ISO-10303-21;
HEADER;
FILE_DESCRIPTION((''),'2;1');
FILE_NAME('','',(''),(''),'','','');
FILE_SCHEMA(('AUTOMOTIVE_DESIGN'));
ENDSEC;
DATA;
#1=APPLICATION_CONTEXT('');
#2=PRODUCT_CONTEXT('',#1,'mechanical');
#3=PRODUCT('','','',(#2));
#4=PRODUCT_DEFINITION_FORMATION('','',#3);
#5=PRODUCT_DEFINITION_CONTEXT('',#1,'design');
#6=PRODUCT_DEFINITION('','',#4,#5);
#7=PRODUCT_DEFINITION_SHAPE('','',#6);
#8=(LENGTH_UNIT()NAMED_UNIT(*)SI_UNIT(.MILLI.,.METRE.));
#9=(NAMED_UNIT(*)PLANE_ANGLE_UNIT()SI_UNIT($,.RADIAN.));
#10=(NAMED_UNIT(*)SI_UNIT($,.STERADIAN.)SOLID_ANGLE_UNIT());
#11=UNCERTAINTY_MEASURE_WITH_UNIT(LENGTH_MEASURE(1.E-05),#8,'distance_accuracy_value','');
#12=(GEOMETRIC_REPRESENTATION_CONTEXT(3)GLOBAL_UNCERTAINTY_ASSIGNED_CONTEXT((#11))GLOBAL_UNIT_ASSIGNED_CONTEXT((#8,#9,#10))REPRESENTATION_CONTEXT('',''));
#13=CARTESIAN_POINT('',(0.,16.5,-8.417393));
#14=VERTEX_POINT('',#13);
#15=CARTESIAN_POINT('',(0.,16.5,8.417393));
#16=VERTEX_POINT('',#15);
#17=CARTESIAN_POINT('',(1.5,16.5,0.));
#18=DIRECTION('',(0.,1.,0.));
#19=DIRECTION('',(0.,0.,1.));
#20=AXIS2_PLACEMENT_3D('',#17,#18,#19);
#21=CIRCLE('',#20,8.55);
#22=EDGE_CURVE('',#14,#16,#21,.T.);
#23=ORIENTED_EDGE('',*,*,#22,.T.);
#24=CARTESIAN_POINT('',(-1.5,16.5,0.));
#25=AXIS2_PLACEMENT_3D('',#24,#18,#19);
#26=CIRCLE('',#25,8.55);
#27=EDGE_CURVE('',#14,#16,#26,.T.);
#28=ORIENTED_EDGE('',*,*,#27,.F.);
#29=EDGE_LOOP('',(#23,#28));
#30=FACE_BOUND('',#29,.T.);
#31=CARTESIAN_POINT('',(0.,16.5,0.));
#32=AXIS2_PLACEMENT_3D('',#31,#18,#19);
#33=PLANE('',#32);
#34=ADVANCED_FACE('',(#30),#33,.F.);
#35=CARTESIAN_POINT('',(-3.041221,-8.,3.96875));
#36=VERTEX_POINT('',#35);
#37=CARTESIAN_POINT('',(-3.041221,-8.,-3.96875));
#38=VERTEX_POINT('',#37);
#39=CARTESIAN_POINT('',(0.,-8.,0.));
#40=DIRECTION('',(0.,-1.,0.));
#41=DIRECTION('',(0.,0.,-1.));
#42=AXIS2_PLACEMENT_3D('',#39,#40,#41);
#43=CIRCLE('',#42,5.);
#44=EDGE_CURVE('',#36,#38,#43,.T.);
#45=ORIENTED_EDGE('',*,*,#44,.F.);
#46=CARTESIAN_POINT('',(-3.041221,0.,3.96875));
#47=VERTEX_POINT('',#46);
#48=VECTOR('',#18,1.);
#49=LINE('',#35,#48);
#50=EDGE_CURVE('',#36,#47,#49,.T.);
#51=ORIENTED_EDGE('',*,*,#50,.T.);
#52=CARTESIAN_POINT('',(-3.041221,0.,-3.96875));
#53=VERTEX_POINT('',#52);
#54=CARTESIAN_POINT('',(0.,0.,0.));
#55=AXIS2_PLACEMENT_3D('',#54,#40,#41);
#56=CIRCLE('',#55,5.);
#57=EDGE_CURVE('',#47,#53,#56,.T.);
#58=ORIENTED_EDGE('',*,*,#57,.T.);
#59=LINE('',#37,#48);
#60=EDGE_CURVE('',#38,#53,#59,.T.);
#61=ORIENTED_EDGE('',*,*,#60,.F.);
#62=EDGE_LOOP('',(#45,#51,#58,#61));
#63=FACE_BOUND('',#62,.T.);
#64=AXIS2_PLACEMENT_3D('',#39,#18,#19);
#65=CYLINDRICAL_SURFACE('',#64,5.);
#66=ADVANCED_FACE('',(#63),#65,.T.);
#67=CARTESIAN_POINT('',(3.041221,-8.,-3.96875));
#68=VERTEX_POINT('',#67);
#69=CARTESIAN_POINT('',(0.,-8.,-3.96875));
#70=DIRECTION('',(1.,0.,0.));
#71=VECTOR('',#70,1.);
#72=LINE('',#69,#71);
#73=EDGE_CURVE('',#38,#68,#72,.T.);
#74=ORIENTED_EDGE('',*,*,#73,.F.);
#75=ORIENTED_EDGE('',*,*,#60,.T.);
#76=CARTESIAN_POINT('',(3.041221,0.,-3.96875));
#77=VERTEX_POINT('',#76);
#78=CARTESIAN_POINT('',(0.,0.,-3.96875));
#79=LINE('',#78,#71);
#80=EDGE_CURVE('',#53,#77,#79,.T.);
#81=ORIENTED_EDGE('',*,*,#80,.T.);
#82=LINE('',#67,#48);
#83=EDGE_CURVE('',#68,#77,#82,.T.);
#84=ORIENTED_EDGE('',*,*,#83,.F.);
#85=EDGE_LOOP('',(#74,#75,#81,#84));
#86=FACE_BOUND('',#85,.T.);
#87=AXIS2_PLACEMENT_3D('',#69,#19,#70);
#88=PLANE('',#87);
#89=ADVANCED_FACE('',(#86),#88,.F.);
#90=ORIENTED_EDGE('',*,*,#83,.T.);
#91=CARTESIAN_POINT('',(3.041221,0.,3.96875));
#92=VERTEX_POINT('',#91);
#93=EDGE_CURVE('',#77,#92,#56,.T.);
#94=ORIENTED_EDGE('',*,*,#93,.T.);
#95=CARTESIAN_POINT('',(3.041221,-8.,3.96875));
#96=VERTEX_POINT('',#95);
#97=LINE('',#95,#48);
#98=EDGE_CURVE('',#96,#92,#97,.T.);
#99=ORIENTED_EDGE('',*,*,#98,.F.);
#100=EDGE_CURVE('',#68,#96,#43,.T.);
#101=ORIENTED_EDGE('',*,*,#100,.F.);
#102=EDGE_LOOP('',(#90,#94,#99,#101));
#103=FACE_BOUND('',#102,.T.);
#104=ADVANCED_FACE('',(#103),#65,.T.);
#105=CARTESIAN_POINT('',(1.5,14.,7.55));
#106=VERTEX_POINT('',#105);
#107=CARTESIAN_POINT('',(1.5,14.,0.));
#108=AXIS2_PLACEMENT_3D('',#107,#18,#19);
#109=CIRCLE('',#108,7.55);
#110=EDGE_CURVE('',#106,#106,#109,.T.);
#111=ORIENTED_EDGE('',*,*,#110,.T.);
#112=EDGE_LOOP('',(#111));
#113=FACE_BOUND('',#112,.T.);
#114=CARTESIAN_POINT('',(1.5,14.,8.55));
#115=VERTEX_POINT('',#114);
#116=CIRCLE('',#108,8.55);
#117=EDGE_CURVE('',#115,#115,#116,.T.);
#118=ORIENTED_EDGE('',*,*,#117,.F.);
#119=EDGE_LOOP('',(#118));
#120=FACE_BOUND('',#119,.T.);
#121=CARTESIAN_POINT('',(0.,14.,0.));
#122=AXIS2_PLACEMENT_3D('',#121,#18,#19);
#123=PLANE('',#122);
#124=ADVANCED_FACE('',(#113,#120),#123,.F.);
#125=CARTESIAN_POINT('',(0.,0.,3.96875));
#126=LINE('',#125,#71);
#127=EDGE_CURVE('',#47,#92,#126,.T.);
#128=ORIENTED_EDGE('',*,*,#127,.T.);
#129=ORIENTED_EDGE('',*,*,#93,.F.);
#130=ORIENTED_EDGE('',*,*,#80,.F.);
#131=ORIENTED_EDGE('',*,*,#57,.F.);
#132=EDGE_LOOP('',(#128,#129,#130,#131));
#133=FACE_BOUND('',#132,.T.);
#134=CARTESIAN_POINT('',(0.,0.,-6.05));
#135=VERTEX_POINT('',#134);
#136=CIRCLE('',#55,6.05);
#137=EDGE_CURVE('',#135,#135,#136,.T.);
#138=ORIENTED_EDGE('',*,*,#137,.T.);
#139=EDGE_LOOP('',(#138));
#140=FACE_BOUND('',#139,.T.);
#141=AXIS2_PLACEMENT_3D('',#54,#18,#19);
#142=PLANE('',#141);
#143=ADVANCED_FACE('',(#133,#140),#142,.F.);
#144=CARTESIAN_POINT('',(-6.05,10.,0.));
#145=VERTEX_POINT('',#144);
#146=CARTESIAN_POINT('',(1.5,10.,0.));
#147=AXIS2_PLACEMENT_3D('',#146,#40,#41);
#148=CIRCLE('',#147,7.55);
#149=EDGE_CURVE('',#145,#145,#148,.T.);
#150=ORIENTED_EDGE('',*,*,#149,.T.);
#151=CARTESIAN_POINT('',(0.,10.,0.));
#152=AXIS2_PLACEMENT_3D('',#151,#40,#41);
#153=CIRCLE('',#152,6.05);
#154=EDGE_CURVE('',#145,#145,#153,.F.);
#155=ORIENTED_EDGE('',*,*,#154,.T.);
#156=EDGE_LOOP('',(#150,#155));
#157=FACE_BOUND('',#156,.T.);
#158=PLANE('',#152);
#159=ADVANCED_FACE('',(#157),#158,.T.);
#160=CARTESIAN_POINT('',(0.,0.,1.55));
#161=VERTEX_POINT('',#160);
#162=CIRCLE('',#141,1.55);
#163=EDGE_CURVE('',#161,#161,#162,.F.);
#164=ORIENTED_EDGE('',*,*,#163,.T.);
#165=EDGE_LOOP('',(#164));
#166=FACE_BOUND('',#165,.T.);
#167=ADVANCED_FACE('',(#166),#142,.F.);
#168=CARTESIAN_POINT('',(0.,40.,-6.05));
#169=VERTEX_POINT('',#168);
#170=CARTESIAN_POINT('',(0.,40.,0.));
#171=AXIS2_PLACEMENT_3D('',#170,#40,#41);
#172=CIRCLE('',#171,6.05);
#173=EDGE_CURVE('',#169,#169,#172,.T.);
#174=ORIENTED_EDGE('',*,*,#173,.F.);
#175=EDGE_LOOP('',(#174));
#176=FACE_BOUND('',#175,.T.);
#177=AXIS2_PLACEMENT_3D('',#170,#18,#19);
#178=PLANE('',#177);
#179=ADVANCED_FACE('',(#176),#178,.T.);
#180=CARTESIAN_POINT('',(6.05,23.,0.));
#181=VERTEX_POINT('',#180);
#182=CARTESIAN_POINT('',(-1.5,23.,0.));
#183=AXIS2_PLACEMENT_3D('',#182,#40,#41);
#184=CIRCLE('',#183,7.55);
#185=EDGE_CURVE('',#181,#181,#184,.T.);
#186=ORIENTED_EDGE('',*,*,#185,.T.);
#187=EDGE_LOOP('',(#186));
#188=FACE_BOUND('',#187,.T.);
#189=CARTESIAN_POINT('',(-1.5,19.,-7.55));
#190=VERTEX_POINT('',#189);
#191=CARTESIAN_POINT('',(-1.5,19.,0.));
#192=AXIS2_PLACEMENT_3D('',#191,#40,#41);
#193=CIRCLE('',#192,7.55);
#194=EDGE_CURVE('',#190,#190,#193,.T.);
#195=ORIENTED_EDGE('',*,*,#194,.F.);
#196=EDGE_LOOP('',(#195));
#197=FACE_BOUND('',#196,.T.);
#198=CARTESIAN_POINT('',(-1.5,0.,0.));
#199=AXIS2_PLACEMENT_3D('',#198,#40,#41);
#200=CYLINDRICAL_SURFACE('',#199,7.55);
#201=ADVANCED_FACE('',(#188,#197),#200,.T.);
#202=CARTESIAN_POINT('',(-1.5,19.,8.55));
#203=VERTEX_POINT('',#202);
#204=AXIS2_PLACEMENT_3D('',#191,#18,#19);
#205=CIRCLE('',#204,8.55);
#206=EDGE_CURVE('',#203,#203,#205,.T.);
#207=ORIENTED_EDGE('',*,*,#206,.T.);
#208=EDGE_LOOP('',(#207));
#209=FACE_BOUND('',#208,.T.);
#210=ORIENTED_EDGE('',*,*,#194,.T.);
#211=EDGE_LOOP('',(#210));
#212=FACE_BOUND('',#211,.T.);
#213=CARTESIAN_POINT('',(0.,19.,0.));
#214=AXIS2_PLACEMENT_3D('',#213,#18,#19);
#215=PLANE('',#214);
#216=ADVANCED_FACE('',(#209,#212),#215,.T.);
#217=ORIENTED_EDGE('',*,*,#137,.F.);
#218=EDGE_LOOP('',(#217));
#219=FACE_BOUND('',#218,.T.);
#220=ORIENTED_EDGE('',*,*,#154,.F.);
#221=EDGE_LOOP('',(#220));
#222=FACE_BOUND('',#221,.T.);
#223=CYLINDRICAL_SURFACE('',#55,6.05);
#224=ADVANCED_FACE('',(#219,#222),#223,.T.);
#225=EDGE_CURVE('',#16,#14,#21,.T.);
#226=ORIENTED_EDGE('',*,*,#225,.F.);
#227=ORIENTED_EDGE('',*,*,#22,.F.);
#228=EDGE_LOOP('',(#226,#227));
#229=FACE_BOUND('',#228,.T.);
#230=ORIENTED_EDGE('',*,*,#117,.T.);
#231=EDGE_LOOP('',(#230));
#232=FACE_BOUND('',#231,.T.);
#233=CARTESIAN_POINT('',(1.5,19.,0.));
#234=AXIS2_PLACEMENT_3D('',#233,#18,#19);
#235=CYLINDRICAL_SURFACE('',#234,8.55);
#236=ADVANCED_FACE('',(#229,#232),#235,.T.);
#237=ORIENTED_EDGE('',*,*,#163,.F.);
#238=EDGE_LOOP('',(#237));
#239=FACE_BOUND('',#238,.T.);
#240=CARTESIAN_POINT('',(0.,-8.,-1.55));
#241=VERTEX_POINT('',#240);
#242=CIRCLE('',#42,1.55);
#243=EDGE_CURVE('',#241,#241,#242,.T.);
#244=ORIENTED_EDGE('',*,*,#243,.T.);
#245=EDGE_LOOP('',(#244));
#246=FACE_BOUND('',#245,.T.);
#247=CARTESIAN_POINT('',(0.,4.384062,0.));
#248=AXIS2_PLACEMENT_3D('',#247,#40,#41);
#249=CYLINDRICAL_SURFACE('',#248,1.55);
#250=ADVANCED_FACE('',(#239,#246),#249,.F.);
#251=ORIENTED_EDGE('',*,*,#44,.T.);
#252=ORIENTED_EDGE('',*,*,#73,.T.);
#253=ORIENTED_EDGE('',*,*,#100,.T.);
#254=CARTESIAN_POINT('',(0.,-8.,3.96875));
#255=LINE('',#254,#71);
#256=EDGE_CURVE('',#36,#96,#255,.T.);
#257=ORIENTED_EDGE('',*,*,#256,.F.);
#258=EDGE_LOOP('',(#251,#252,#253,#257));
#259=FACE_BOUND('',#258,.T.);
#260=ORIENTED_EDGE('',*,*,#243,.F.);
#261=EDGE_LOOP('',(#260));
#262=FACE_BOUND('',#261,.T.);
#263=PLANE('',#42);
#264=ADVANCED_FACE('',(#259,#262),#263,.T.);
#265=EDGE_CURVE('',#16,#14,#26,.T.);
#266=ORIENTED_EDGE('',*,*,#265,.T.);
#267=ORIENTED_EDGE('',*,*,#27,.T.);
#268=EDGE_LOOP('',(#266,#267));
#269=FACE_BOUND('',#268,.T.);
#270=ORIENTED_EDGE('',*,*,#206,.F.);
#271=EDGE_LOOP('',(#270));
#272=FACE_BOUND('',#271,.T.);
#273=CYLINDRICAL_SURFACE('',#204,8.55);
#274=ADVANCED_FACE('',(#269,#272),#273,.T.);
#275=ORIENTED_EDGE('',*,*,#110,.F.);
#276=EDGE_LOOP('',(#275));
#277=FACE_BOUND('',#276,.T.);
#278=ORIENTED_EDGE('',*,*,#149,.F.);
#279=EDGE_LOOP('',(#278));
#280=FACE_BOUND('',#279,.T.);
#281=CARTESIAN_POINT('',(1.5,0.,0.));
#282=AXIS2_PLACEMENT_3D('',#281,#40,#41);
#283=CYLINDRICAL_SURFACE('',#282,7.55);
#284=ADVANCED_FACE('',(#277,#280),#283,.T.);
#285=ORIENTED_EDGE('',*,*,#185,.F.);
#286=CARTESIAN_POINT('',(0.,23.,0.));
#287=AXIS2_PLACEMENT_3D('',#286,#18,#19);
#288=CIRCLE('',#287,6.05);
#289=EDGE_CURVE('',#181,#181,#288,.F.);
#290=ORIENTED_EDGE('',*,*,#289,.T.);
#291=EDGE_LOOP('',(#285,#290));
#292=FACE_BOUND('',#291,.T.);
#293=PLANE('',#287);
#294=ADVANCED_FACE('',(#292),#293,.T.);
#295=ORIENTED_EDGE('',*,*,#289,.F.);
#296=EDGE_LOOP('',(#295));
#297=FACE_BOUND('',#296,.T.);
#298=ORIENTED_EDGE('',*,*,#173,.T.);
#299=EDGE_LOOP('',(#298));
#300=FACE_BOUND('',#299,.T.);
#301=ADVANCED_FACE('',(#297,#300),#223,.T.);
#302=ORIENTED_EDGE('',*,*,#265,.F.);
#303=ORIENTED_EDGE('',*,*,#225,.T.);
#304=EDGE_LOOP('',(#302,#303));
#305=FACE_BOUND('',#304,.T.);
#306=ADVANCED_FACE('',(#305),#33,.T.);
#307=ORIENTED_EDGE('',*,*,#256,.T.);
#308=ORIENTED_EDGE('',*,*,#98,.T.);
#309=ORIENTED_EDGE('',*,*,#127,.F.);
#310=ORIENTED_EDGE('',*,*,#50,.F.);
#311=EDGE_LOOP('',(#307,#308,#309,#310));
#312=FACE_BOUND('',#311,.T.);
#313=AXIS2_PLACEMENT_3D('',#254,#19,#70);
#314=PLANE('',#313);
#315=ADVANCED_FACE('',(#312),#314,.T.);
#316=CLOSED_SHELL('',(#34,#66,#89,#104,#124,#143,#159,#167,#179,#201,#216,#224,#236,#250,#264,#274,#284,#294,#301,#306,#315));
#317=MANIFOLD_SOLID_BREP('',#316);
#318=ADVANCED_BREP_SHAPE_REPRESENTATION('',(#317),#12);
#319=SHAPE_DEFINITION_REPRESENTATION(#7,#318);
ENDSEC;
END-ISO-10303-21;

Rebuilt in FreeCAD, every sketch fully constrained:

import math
import FreeCAD as App
import Part
import Sketcher

V = App.Vector
Q = App.Units.Quantity


def add_polygon(sketch, points):
    """Adds a closed chain of lines whose ends are joined by coincident constraints."""
    first, n = sketch.GeometryCount, len(points)
    for a, b in zip(points, points[1:] + points[:1]):
        sketch.addGeometry(Part.LineSegment(App.Vector(*a, 0), App.Vector(*b, 0)), False)
    for i in range(n):
        sketch.addConstraint(Sketcher.Constraint("Coincident", first + i, 2, first + (i + 1) % n, 1))

doc = App.newDocument("Part")
params = doc.addObject("Spreadsheet::Sheet", "Params")
for row, (alias, value) in enumerate([
    ("sketch1_height", "40 mm"),
    ("sketch1_width", "6.05 mm"),
    ("revolution_angle", "360 deg"),
    ("sketch2_width", "3 mm"),
    ("sketch2_height", "4 mm"),
    ("revolution2_angle", "360 deg"),
    ("sketch3_width", "3 mm"),
    ("sketch3_height", "4 mm"),
    ("revolution3_angle", "360 deg"),
    ("sketch4_height", "2.5 mm"),
    ("sketch4_width", "8.55 mm"),
    ("revolution4_angle", "360 deg"),
    ("sketch5_height", "2.5 mm"),
    ("sketch5_width", "8.55 mm"),
    ("revolution5_angle", "360 deg"),
    ("sketch6_radius", "5 mm"),
    ("pad1_length", "8 mm"),
    ("sketch7_diameter", "3.1 mm"),
    ("pocket1_length", "8 mm"),
], start=1):
    params.set(f"A{row}", alias)
    params.set(f"B{row}", "=" + value)
    params.setAlias(f"B{row}", alias)

body = doc.addObject("PartDesign::Body", "Body")

# Sketch on XY plane
sketch1 = doc.addObject("Sketcher::SketchObject", "Sketch")
body.addObject(sketch1)
sketch1.AttachmentSupport = (doc.XY_Plane, [""])
sketch1.MapMode = "FlatFace"
add_polygon(sketch1, [(-6, 40), (-6, 0), (0, 0), (0, 40)])  # lines 0-3
sketch1.addConstraint(Sketcher.Constraint("Vertical", 0))
sketch1.addConstraint(Sketcher.Constraint("Horizontal", 1))
sketch1.addConstraint(Sketcher.Constraint("Vertical", 2))
sketch1.addConstraint(Sketcher.Constraint("Horizontal", 3))
sketch1.addConstraint(Sketcher.Constraint("Coincident", 1, 2, -1, 1))
sketch1.addConstraint(Sketcher.Constraint("DistanceY", 0, 2, 0, 1, Q("40 mm")))
sketch1.addConstraint(Sketcher.Constraint("DistanceX", 1, 1, 1, 2, Q("6.05 mm")))
sketch1.setExpression("Constraints[9]", "Params.sketch1_height")
sketch1.setExpression("Constraints[10]", "Params.sketch1_width")
revolution = doc.addObject("PartDesign::Revolution", "Revolution")
body.addObject(revolution)
revolution.Profile = sketch1
revolution.ReferenceAxis = (sketch1, ["V_Axis"])
revolution.setExpression("Angle", "Params.revolution_angle")

# Sketch on XY plane
sketch2 = doc.addObject("Sketcher::SketchObject", "Sketch001")
body.addObject(sketch2)
sketch2.AttachmentSupport = (doc.XY_Plane, [""])
sketch2.MapMode = "FlatFace"
add_polygon(sketch2, [(-9.1, 23), (-9.1, 19), (-6, 19), (-6, 23)])  # lines 0-3
sketch2.addGeometry(Part.LineSegment(V(-1.5, 19, 0), V(-1.5, 23, 0)), True)  # axis
sketch2.addConstraint(Sketcher.Constraint("Vertical", 0))
sketch2.addConstraint(Sketcher.Constraint("Horizontal", 1))
sketch2.addConstraint(Sketcher.Constraint("Vertical", 2))
sketch2.addConstraint(Sketcher.Constraint("Horizontal", 3))
sketch2.addConstraint(Sketcher.Constraint("Vertical", 4))
sketch2.addConstraint(Sketcher.Constraint("Horizontal", 1, 2, 4, 1))
sketch2.addConstraint(Sketcher.Constraint("Horizontal", 3, 2, 4, 2))
sketch2.addConstraint(Sketcher.Constraint("DistanceX", 1, 1, 1, 2, Q("3 mm")))
sketch2.addConstraint(Sketcher.Constraint("DistanceY", 0, 2, 0, 1, Q("4 mm")))
sketch2.addConstraint(Sketcher.Constraint("DistanceY", -1, 1, 0, 2, Q("19 mm")))
sketch2.addConstraint(Sketcher.Constraint("DistanceX", 4, 1, -1, 1, Q("1.5 mm")))
sketch2.addConstraint(Sketcher.Constraint("DistanceX", 0, 2, -1, 1, Q("9.05 mm")))
sketch2.setExpression("Constraints[11]", "Params.sketch2_width")
sketch2.setExpression("Constraints[12]", "Params.sketch2_height")
revolution2 = doc.addObject("PartDesign::Revolution", "Revolution001")
body.addObject(revolution2)
revolution2.Profile = sketch2
revolution2.ReferenceAxis = (sketch2, ["Axis0"])
revolution2.setExpression("Angle", "Params.revolution2_angle")

# Sketch on XY plane
sketch3 = doc.addObject("Sketcher::SketchObject", "Sketch002")
body.addObject(sketch3)
sketch3.AttachmentSupport = (doc.XY_Plane, [""])
sketch3.MapMode = "FlatFace"
add_polygon(sketch3, [(6, 14), (6, 10), (9.1, 10), (9.1, 14)])  # lines 0-3
sketch3.addGeometry(Part.LineSegment(V(1.5, 10, 0), V(1.5, 14, 0)), True)  # axis
sketch3.addConstraint(Sketcher.Constraint("Vertical", 0))
sketch3.addConstraint(Sketcher.Constraint("Horizontal", 1))
sketch3.addConstraint(Sketcher.Constraint("Vertical", 2))
sketch3.addConstraint(Sketcher.Constraint("Horizontal", 3))
sketch3.addConstraint(Sketcher.Constraint("Vertical", 4))
sketch3.addConstraint(Sketcher.Constraint("Horizontal", 1, 2, 4, 1))
sketch3.addConstraint(Sketcher.Constraint("Horizontal", 3, 2, 4, 2))
sketch3.addConstraint(Sketcher.Constraint("DistanceX", 1, 1, 1, 2, Q("3 mm")))
sketch3.addConstraint(Sketcher.Constraint("DistanceY", 0, 2, 0, 1, Q("4 mm")))
sketch3.addConstraint(Sketcher.Constraint("DistanceY", -1, 1, 0, 2, Q("10 mm")))
sketch3.addConstraint(Sketcher.Constraint("DistanceX", -1, 1, 4, 1, Q("1.5 mm")))
sketch3.addConstraint(Sketcher.Constraint("DistanceX", -1, 1, 0, 2, Q("6.05 mm")))
sketch3.setExpression("Constraints[11]", "Params.sketch3_width")
sketch3.setExpression("Constraints[12]", "Params.sketch3_height")
revolution3 = doc.addObject("PartDesign::Revolution", "Revolution002")
body.addObject(revolution3)
revolution3.Profile = sketch3
revolution3.ReferenceAxis = (sketch3, ["Axis0"])
revolution3.setExpression("Angle", "Params.revolution3_angle")

# Sketch on XY plane
sketch4 = doc.addObject("Sketcher::SketchObject", "Sketch003")
body.addObject(sketch4)
sketch4.AttachmentSupport = (doc.XY_Plane, [""])
sketch4.MapMode = "FlatFace"
add_polygon(sketch4, [(-10.1, 19), (-10.1, 16.5), (-1.5, 16.5), (-1.5, 19)])  # lines 0-3
sketch4.addGeometry(Part.LineSegment(V(-1.5, 19, 0), V(-1.5, 16.5, 0)), True)  # axis
sketch4.addConstraint(Sketcher.Constraint("Vertical", 0))
sketch4.addConstraint(Sketcher.Constraint("Horizontal", 1))
sketch4.addConstraint(Sketcher.Constraint("Vertical", 2))
sketch4.addConstraint(Sketcher.Constraint("Horizontal", 3))
sketch4.addConstraint(Sketcher.Constraint("Vertical", 4))
sketch4.addConstraint(Sketcher.Constraint("Coincident", 4, 1, 2, 2))
sketch4.addConstraint(Sketcher.Constraint("Horizontal", 0, 2, 4, 2))
sketch4.addConstraint(Sketcher.Constraint("DistanceY", 0, 2, 0, 1, Q("2.5 mm")))
sketch4.addConstraint(Sketcher.Constraint("DistanceY", -1, 1, 2, 2, Q("19 mm")))
sketch4.addConstraint(Sketcher.Constraint("DistanceX", 1, 1, 1, 2, Q("8.55 mm")))
sketch4.addConstraint(Sketcher.Constraint("DistanceX", 1, 2, -1, 1, Q("1.5 mm")))
sketch4.setExpression("Constraints[11]", "Params.sketch4_height")
sketch4.setExpression("Constraints[13]", "Params.sketch4_width")
revolution4 = doc.addObject("PartDesign::Revolution", "Revolution003")
body.addObject(revolution4)
revolution4.Profile = sketch4
revolution4.ReferenceAxis = (sketch4, ["Axis0"])
revolution4.setExpression("Angle", "Params.revolution4_angle")

# Sketch on XY plane
sketch5 = doc.addObject("Sketcher::SketchObject", "Sketch004")
body.addObject(sketch5)
sketch5.AttachmentSupport = (doc.XY_Plane, [""])
sketch5.MapMode = "FlatFace"
add_polygon(sketch5, [(1.5, 16.5), (1.5, 14), (10.1, 14), (10.1, 16.5)])  # lines 0-3
sketch5.addGeometry(Part.LineSegment(V(1.5, 16.5, 0), V(1.5, 14, 0)), True)  # axis
sketch5.addConstraint(Sketcher.Constraint("Vertical", 0))
sketch5.addConstraint(Sketcher.Constraint("Horizontal", 1))
sketch5.addConstraint(Sketcher.Constraint("Vertical", 2))
sketch5.addConstraint(Sketcher.Constraint("Horizontal", 3))
sketch5.addConstraint(Sketcher.Constraint("Vertical", 4))
sketch5.addConstraint(Sketcher.Constraint("Coincident", 4, 1, 3, 2))
sketch5.addConstraint(Sketcher.Constraint("Horizontal", 1, 2, 4, 2))
sketch5.addConstraint(Sketcher.Constraint("DistanceY", 0, 2, 0, 1, Q("2.5 mm")))
sketch5.addConstraint(Sketcher.Constraint("DistanceY", -1, 1, 0, 2, Q("14 mm")))
sketch5.addConstraint(Sketcher.Constraint("DistanceX", 1, 1, 1, 2, Q("8.55 mm")))
sketch5.addConstraint(Sketcher.Constraint("DistanceX", -1, 1, 0, 2, Q("1.5 mm")))
sketch5.setExpression("Constraints[11]", "Params.sketch5_height")
sketch5.setExpression("Constraints[13]", "Params.sketch5_width")
revolution5 = doc.addObject("PartDesign::Revolution", "Revolution004")
body.addObject(revolution5)
revolution5.Profile = sketch5
revolution5.ReferenceAxis = (sketch5, ["Axis0"])
revolution5.setExpression("Angle", "Params.revolution5_angle")

# Sketch on XZ plane
sketch6 = doc.addObject("Sketcher::SketchObject", "Sketch005")
body.addObject(sketch6)
sketch6.AttachmentSupport = (doc.XZ_Plane, [""])
sketch6.MapMode = "FlatFace"
sketch6.addGeometry(Part.LineSegment(V(3, 4, 0), V(-3, 4, 0)), False)
sketch6.addGeometry(Part.ArcOfCircle(Part.Circle(V(0, 0, 0), V(0, 0, 1), 5), math.radians(127), math.radians(233)), False)
sketch6.addGeometry(Part.LineSegment(V(-3, -4, 0), V(3, -4, 0)), False)
sketch6.addGeometry(Part.ArcOfCircle(Part.Circle(V(0, 0, 0), V(0, 0, 1), 5), math.radians(-53), math.radians(0)), False)
sketch6.addGeometry(Part.ArcOfCircle(Part.Circle(V(0, 0, 0), V(0, 0, 1), 5), math.radians(0), math.radians(53)), False)
sketch6.addConstraint(Sketcher.Constraint("Coincident", 0, 2, 1, 1))
sketch6.addConstraint(Sketcher.Constraint("Coincident", 1, 2, 2, 1))
sketch6.addConstraint(Sketcher.Constraint("Coincident", 2, 2, 3, 1))
sketch6.addConstraint(Sketcher.Constraint("Tangent", 3, 2, 4, 1))
sketch6.addConstraint(Sketcher.Constraint("Coincident", 4, 2, 0, 1))
sketch6.addConstraint(Sketcher.Constraint("Horizontal", 0))
sketch6.addConstraint(Sketcher.Constraint("Horizontal", 2))
sketch6.addConstraint(Sketcher.Constraint("Coincident", 1, 3, -1, 1))
sketch6.addConstraint(Sketcher.Constraint("Coincident", 3, 3, -1, 1))
sketch6.addConstraint(Sketcher.Constraint("Equal", 1, 3))
sketch6.addConstraint(Sketcher.Constraint("Equal", 3, 4))
sketch6.addConstraint(Sketcher.Constraint("PointOnObject", 3, 2, -1))
sketch6.addConstraint(Sketcher.Constraint("Vertical", 0, 2, 1, 2))
sketch6.addConstraint(Sketcher.Constraint("Radius", 1, Q("5 mm")))
sketch6.addConstraint(Sketcher.Constraint("DistanceX", 0, 2, 0, 1, Q("6.082441 mm")))
sketch6.setExpression("Constraints[13]", "Params.sketch6_radius")
pad1 = doc.addObject("PartDesign::Pad", "Pad")
body.addObject(pad1)
pad1.Profile = sketch6
pad1.setExpression("Length", "Params.pad1_length")

# Sketch on XZ plane
sketch7 = doc.addObject("Sketcher::SketchObject", "Sketch006")
body.addObject(sketch7)
sketch7.AttachmentSupport = (doc.XZ_Plane, [""])
sketch7.MapMode = "FlatFace"
sketch7.AttachmentOffset = App.Placement(V(0, 0, 8), App.Rotation())
sketch7.addGeometry(Part.Circle(V(0, 0, 0), V(0, 0, 1), 1.6), False)
sketch7.addConstraint(Sketcher.Constraint("Coincident", 0, 3, -1, 1))
sketch7.addConstraint(Sketcher.Constraint("Diameter", 0, Q("3.1 mm")))
sketch7.setExpression("Constraints[1]", "Params.sketch7_diameter")
pocket1 = doc.addObject("PartDesign::Pocket", "Pocket")
body.addObject(pocket1)
pocket1.Profile = sketch7
pocket1.setExpression("Length", "Params.pocket1_length")

doc.recompute()
